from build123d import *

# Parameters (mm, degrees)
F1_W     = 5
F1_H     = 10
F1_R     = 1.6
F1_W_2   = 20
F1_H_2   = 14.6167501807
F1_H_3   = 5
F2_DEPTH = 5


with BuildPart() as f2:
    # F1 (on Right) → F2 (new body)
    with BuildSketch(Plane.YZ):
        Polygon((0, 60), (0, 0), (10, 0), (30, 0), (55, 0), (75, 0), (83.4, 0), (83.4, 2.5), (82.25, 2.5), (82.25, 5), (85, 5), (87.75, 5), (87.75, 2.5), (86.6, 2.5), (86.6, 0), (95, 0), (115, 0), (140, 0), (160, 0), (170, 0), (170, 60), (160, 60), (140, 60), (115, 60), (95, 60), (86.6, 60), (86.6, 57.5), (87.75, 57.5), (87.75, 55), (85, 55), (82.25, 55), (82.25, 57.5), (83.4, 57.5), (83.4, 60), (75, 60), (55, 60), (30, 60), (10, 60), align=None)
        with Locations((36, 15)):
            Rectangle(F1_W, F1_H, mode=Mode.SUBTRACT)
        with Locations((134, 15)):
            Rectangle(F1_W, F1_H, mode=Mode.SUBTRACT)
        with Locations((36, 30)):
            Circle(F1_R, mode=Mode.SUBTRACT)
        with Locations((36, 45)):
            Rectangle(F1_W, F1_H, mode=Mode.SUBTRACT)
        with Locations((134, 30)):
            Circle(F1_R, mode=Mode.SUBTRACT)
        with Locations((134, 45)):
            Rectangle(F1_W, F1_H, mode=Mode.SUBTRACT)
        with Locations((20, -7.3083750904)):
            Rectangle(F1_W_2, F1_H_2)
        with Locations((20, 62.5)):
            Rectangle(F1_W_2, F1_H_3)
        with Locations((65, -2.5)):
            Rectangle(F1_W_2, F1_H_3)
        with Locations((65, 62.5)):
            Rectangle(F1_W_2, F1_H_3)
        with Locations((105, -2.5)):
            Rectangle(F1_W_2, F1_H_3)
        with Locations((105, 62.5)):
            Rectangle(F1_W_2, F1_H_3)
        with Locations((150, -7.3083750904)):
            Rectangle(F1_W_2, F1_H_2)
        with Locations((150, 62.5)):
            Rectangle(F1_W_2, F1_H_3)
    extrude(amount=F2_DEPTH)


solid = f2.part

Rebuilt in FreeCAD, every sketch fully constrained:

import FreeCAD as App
import Part
import Sketcher
from FreeCAD import Vector

doc = App.newDocument("Part")
body = doc.addObject("PartDesign::Body", "Body")

# Sketch on YZ plane
sketch1 = body.newObject("Sketcher::SketchObject", "Sketch")
sketch1.AttachmentSupport = (doc.getObject("YZ_Plane"), [""])
sketch1.MapMode = "FlatFace"
sketch1.addGeometry([
    Part.LineSegment(Vector(0, 60, 0), Vector(0, 0, 0)),  # 0
    Part.LineSegment(Vector(0, 0, 0), Vector(10, 0, 0)),  # 1
    Part.LineSegment(Vector(10, 0, 0), Vector(10, -14.6, 0)),  # 2
    Part.LineSegment(Vector(10, -14.6, 0), Vector(30, -14.6, 0)),  # 3
    Part.LineSegment(Vector(30, -14.6, 0), Vector(30, 0, 0)),  # 4
    Part.LineSegment(Vector(30, 0, 0), Vector(55, 0, 0)),  # 5
    Part.LineSegment(Vector(55, 0, 0), Vector(55, -5, 0)),  # 6
    Part.LineSegment(Vector(55, -5, 0), Vector(75, -5, 0)),  # 7
    Part.LineSegment(Vector(75, -5, 0), Vector(75, 0, 0)),  # 8
    Part.LineSegment(Vector(75, 0, 0), Vector(83.4, 0, 0)),  # 9
    Part.LineSegment(Vector(83.4, 0, 0), Vector(83.4, 2.5, 0)),  # 10
    Part.LineSegment(Vector(83.4, 2.5, 0), Vector(82.2, 2.5, 0)),  # 11
    Part.LineSegment(Vector(82.2, 2.5, 0), Vector(82.2, 5, 0)),  # 12
    Part.LineSegment(Vector(82.2, 5, 0), Vector(87.8, 5, 0)),  # 13
    Part.LineSegment(Vector(87.8, 5, 0), Vector(87.8, 2.5, 0)),  # 14
    Part.LineSegment(Vector(87.8, 2.5, 0), Vector(86.6, 2.5, 0)),  # 15
    Part.LineSegment(Vector(86.6, 2.5, 0), Vector(86.6, 0, 0)),  # 16
    Part.LineSegment(Vector(86.6, 0, 0), Vector(95, 0, 0)),  # 17
    Part.LineSegment(Vector(95, 0, 0), Vector(95, -5, 0)),  # 18
    Part.LineSegment(Vector(95, -5, 0), Vector(115, -5, 0)),  # 19
    Part.LineSegment(Vector(115, -5, 0), Vector(115, 0, 0)),  # 20
    Part.LineSegment(Vector(115, 0, 0), Vector(140, 0, 0)),  # 21
    Part.LineSegment(Vector(140, 0, 0), Vector(140, -14.6, 0)),  # 22
    Part.LineSegment(Vector(140, -14.6, 0), Vector(160, -14.6, 0)),  # 23
    Part.LineSegment(Vector(160, -14.6, 0), Vector(160, 0, 0)),  # 24
    Part.LineSegment(Vector(160, 0, 0), Vector(170, 0, 0)),  # 25
    Part.LineSegment(Vector(170, 0, 0), Vector(170, 60, 0)),  # 26
    Part.LineSegment(Vector(170, 60, 0), Vector(160, 60, 0)),  # 27
    Part.LineSegment(Vector(160, 60, 0), Vector(160, 65, 0)),  # 28
    Part.LineSegment(Vector(160, 65, 0), Vector(140, 65, 0)),  # 29
    Part.LineSegment(Vector(140, 65, 0), Vector(140, 60, 0)),  # 30
    Part.LineSegment(Vector(140, 60, 0), Vector(115, 60, 0)),  # 31
    Part.LineSegment(Vector(115, 60, 0), Vector(115, 65, 0)),  # 32
    Part.LineSegment(Vector(115, 65, 0), Vector(95, 65, 0)),  # 33
    Part.LineSegment(Vector(95, 65, 0), Vector(95, 60, 0)),  # 34
    Part.LineSegment(Vector(95, 60, 0), Vector(86.6, 60, 0)),  # 35
    Part.LineSegment(Vector(86.6, 60, 0), Vector(86.6, 57.5, 0)),  # 36
    Part.LineSegment(Vector(86.6, 57.5, 0), Vector(87.8, 57.5, 0)),  # 37
    Part.LineSegment(Vector(87.8, 57.5, 0), Vector(87.8, 55, 0)),  # 38
    Part.LineSegment(Vector(87.8, 55, 0), Vector(82.2, 55, 0)),  # 39
    Part.LineSegment(Vector(82.2, 55, 0), Vector(82.2, 57.5, 0)),  # 40
    Part.LineSegment(Vector(82.2, 57.5, 0), Vector(83.4, 57.5, 0)),  # 41
    Part.LineSegment(Vector(83.4, 57.5, 0), Vector(83.4, 60, 0)),  # 42
    Part.LineSegment(Vector(83.4, 60, 0), Vector(75, 60, 0)),  # 43
    Part.LineSegment(Vector(75, 60, 0), Vector(75, 65, 0)),  # 44
    Part.LineSegment(Vector(75, 65, 0), Vector(55, 65, 0)),  # 45
    Part.LineSegment(Vector(55, 65, 0), Vector(55, 60, 0)),  # 46
    Part.LineSegment(Vector(55, 60, 0), Vector(30, 60, 0)),  # 47
    Part.LineSegment(Vector(30, 60, 0), Vector(30, 65, 0)),  # 48
    Part.LineSegment(Vector(30, 65, 0), Vector(10, 65, 0)),  # 49
    Part.LineSegment(Vector(10, 65, 0), Vector(10, 60, 0)),  # 50
    Part.LineSegment(Vector(10, 60, 0), Vector(0, 60, 0)),  # 51
    Part.LineSegment(Vector(38.5, 10, 0), Vector(33.5, 10, 0)),  # 52
    Part.LineSegment(Vector(33.5, 10, 0), Vector(33.5, 20, 0)),  # 53
    Part.LineSegment(Vector(33.5, 20, 0), Vector(38.5, 20, 0)),  # 54
    Part.LineSegment(Vector(38.5, 20, 0), Vector(38.5, 10, 0)),  # 55
    Part.LineSegment(Vector(136.5, 10, 0), Vector(131.5, 10, 0)),  # 56
    Part.LineSegment(Vector(131.5, 10, 0), Vector(131.5, 20, 0)),  # 57
    Part.LineSegment(Vector(131.5, 20, 0), Vector(136.5, 20, 0)),  # 58
    Part.LineSegment(Vector(136.5, 20, 0), Vector(136.5, 10, 0)),  # 59
    Part.Circle(Vector(36, 30, 0), Vector(0, 0, 1), 1.6),  # 60
    Part.LineSegment(Vector(38.5, 40, 0), Vector(33.5, 40, 0)),  # 61
    Part.LineSegment(Vector(33.5, 40, 0), Vector(33.5, 50, 0)),  # 62
    Part.LineSegment(Vector(33.5, 50, 0), Vector(38.5, 50, 0)),  # 63
    Part.LineSegment(Vector(38.5, 50, 0), Vector(38.5, 40, 0)),  # 64
    Part.Circle(Vector(134, 30, 0), Vector(0, 0, 1), 1.6),  # 65
    Part.LineSegment(Vector(136.5, 40, 0), Vector(131.5, 40, 0)),  # 66
    Part.LineSegment(Vector(131.5, 40, 0), Vector(131.5, 50, 0)),  # 67
    Part.LineSegment(Vector(131.5, 50, 0), Vector(136.5, 50, 0)),  # 68
    Part.LineSegment(Vector(136.5, 50, 0), Vector(136.5, 40, 0)),  # 69
], False)
sketch1.addConstraint([
    Sketcher.Constraint("Coincident", 0, 2, 1, 1),
    Sketcher.Constraint("Coincident", 1, 2, 2, 1),
    Sketcher.Constraint("Coincident", 2, 2, 3, 1),
    Sketcher.Constraint("Coincident", 3, 2, 4, 1),
    Sketcher.Constraint("Coincident", 4, 2, 5, 1),
    Sketcher.Constraint("Coincident", 5, 2, 6, 1),
    Sketcher.Constraint("Coincident", 6, 2, 7, 1),
    Sketcher.Constraint("Coincident", 7, 2, 8, 1),
    Sketcher.Constraint("Coincident", 8, 2, 9, 1),
    Sketcher.Constraint("Coincident", 9, 2, 10, 1),
    Sketcher.Constraint("Coincident", 10, 2, 11, 1),
    Sketcher.Constraint("Coincident", 11, 2, 12, 1),
    Sketcher.Constraint("Coincident", 12, 2, 13, 1),
    Sketcher.Constraint("Coincident", 13, 2, 14, 1),
    Sketcher.Constraint("Coincident", 14, 2, 15, 1),
    Sketcher.Constraint("Coincident", 15, 2, 16, 1),
    Sketcher.Constraint("Coincident", 16, 2, 17, 1),
    Sketcher.Constraint("Coincident", 17, 2, 18, 1),
    Sketcher.Constraint("Coincident", 18, 2, 19, 1),
    Sketcher.Constraint("Coincident", 19, 2, 20, 1),
    Sketcher.Constraint("Coincident", 20, 2, 21, 1),
    Sketcher.Constraint("Coincident", 21, 2, 22, 1),
    Sketcher.Constraint("Coincident", 22, 2, 23, 1),
    Sketcher.Constraint("Coincident", 23, 2, 24, 1),
    Sketcher.Constraint("Coincident", 24, 2, 25, 1),
    Sketcher.Constraint("Coincident", 25, 2, 26, 1),
    Sketcher.Constraint("Coincident", 26, 2, 27, 1),
    Sketcher.Constraint("Coincident", 27, 2, 28, 1),
    Sketcher.Constraint("Coincident", 28, 2, 29, 1),
    Sketcher.Constraint("Coincident", 29, 2, 30, 1),
    Sketcher.Constraint("Coincident", 30, 2, 31, 1),
    Sketcher.Constraint("Coincident", 31, 2, 32, 1),
    Sketcher.Constraint("Coincident", 32, 2, 33, 1),
    Sketcher.Constraint("Coincident", 33, 2, 34, 1),
    Sketcher.Constraint("Coincident", 34, 2, 35, 1),
    Sketcher.Constraint("Coincident", 35, 2, 36, 1),
    Sketcher.Constraint("Coincident", 36, 2, 37, 1),
    Sketcher.Constraint("Coincident", 37, 2, 38, 1),
    Sketcher.Constraint("Coincident", 38, 2, 39, 1),
    Sketcher.Constraint("Coincident", 39, 2, 40, 1),
    Sketcher.Constraint("Coincident", 40, 2, 41, 1),
    Sketcher.Constraint("Coincident", 41, 2, 42, 1),
    Sketcher.Constraint("Coincident", 42, 2, 43, 1),
    Sketcher.Constraint("Coincident", 43, 2, 44, 1),
    Sketcher.Constraint("Coincident", 44, 2, 45, 1),
    Sketcher.Constraint("Coincident", 45, 2, 46, 1),
    Sketcher.Constraint("Coincident", 46, 2, 47, 1),
    Sketcher.Constraint("Coincident", 47, 2, 48, 1),
    Sketcher.Constraint("Coincident", 48, 2, 49, 1),
    Sketcher.Constraint("Coincident", 49, 2, 50, 1),
    Sketcher.Constraint("Coincident", 50, 2, 51, 1),
    Sketcher.Constraint("Coincident", 51, 2, 0, 1),
    Sketcher.Constraint("Coincident", 52, 2, 53, 1),
    Sketcher.Constraint("Coincident", 53, 2, 54, 1),
    Sketcher.Constraint("Coincident", 54, 2, 55, 1),
    Sketcher.Constraint("Coincident", 55, 2, 52, 1),
    Sketcher.Constraint("Coincident", 56, 2, 57, 1),
    Sketcher.Constraint("Coincident", 57, 2, 58, 1),
    Sketcher.Constraint("Coincident", 58, 2, 59, 1),
    Sketcher.Constraint("Coincident", 59, 2, 56, 1),
    Sketcher.Constraint("Coincident", 61, 2, 62, 1),
    Sketcher.Constraint("Coincident", 62, 2, 63, 1),
    Sketcher.Constraint("Coincident", 63, 2, 64, 1),
    Sketcher.Constraint("Coincident", 64, 2, 61, 1),
    Sketcher.Constraint("Coincident", 66, 2, 67, 1),
    Sketcher.Constraint("Coincident", 67, 2, 68, 1),
    Sketcher.Constraint("Coincident", 68, 2, 69, 1),
    Sketcher.Constraint("Coincident", 69, 2, 66, 1),
    Sketcher.Constraint("Vertical", 0),
    Sketcher.Constraint("Horizontal", 1),
    Sketcher.Constraint("Vertical", 2),
    Sketcher.Constraint("Horizontal", 3),
    Sketcher.Constraint("Vertical", 4),
    Sketcher.Constraint("Horizontal", 5),
    Sketcher.Constraint("Vertical", 6),
    Sketcher.Constraint("Horizontal", 7),
    Sketcher.Constraint("Vertical", 8),
    Sketcher.Constraint("Horizontal", 9),
    Sketcher.Constraint("Vertical", 10),
    Sketcher.Constraint("Horizontal", 11),
    Sketcher.Constraint("Vertical", 12),
    Sketcher.Constraint("Horizontal", 13),
    Sketcher.Constraint("Vertical", 14),
    Sketcher.Constraint("Horizontal", 15),
    Sketcher.Constraint("Vertical", 16),
    Sketcher.Constraint("Horizontal", 17),
    Sketcher.Constraint("Vertical", 18),
    Sketcher.Constraint("Horizontal", 19),
    Sketcher.Constraint("Vertical", 20),
    Sketcher.Constraint("Horizontal", 21),
    Sketcher.Constraint("Vertical", 22),
    Sketcher.Constraint("Horizontal", 23),
    Sketcher.Constraint("Vertical", 24),
    Sketcher.Constraint("Horizontal", 25),
    Sketcher.Constraint("Vertical", 26),
    Sketcher.Constraint("Horizontal", 27),
    Sketcher.Constraint("Vertical", 28),
    Sketcher.Constraint("Horizontal", 29),
    Sketcher.Constraint("Vertical", 30),
    Sketcher.Constraint("Horizontal", 31),
    Sketcher.Constraint("Vertical", 32),
    Sketcher.Constraint("Horizontal", 33),
    Sketcher.Constraint("Vertical", 34),
    Sketcher.Constraint("Horizontal", 35),
    Sketcher.Constraint("Vertical", 36),
    Sketcher.Constraint("Horizontal", 37),
    Sketcher.Constraint("Vertical", 38),
    Sketcher.Constraint("Horizontal", 39),
    Sketcher.Constraint("Vertical", 40),
    Sketcher.Constraint("Horizontal", 41),
    Sketcher.Constraint("Vertical", 42),
    Sketcher.Constraint("Horizontal", 43),
    Sketcher.Constraint("Vertical", 44),
    Sketcher.Constraint("Horizontal", 45),
    Sketcher.Constraint("Vertical", 46),
    Sketcher.Constraint("Horizontal", 47),
    Sketcher.Constraint("Vertical", 48),
    Sketcher.Constraint("Horizontal", 49),
    Sketcher.Constraint("Vertical", 50),
    Sketcher.Constraint("Horizontal", 51),
    Sketcher.Constraint("Horizontal", 52),
    Sketcher.Constraint("Vertical", 53),
    Sketcher.Constraint("Horizontal", 54),
    Sketcher.Constraint("Vertical", 55),
    Sketcher.Constraint("Horizontal", 56),
    Sketcher.Constraint("Vertical", 57),
    Sketcher.Constraint("Horizontal", 58),
    Sketcher.Constraint("Vertical", 59),
    Sketcher.Constraint("Horizontal", 61),
    Sketcher.Constraint("Vertical", 62),
    Sketcher.Constraint("Horizontal", 63),
    Sketcher.Constraint("Vertical", 64),
    Sketcher.Constraint("Horizontal", 66),
    Sketcher.Constraint("Vertical", 67),
    Sketcher.Constraint("Horizontal", 68),
    Sketcher.Constraint("Vertical", 69),
    Sketcher.Constraint("Coincident", 0, 2, -1, 1),
    Sketcher.Constraint("Equal", 60, 65),
    Sketcher.Constraint("PointOnObject", 4, 2, -1),
    Sketcher.Constraint("PointOnObject", 8, 2, -1),
    Sketcher.Constraint("PointOnObject", 16, 2, -1),
    Sketcher.Constraint("PointOnObject", 20, 2, -1),
    Sketcher.Constraint("PointOnObject", 24, 2, -1),
    Sketcher.Constraint("Horizontal", 60, 3, 65, 3),
    Sketcher.Constraint("Horizontal", 11, 2, 14, 2),
    Sketcher.Constraint("Horizontal", 7, 2, 18, 2),
    Sketcher.Constraint("Horizontal", 3, 2, 22, 2),
    Sketcher.Constraint("Horizontal", 27, 2, 30, 2),
    Sketcher.Constraint("Horizontal", 29, 2, 32, 2),
    Sketcher.Constraint("Horizontal", 31, 2, 34, 2),
    Sketcher.Constraint("Horizontal", 37, 2, 40, 2),
    Sketcher.Constraint("Horizontal", 35, 2, 42, 2),
    Sketcher.Constraint("Horizontal", 33, 2, 44, 2),
    Sketcher.Constraint("Horizontal", 43, 2, 46, 2),
    Sketcher.Constraint("Horizontal", 45, 2, 48, 2),
    Sketcher.Constraint("Horizontal", 47, 2, 50, 2),
    Sketcher.Constraint("Horizontal", 55, 2, 56, 2),
    Sketcher.Constraint("Horizontal", 54, 2, 57, 2),
    Sketcher.Constraint("Horizontal", 64, 2, 66, 2),
    Sketcher.Constraint("Horizontal", 63, 2, 67, 2),
    Sketcher.Constraint("Vertical", 24, 2, 27, 2),
    Sketcher.Constraint("Vertical", 22, 2, 29, 2),
    Sketcher.Constraint("Vertical", 20, 2, 31, 2),
    Sketcher.Constraint("Vertical", 18, 2, 33, 2),
    Sketcher.Constraint("Vertical", 16, 2, 35, 2),
    Sketcher.Constraint("Vertical", 14, 2, 37, 2),
    Sketcher.Constraint("Vertical", 12, 2, 39, 2),
    Sketcher.Constraint("Vertical", 10, 2, 41, 2),
    Sketcher.Constraint("Vertical", 8, 2, 43, 2),
    Sketcher.Constraint("Vertical", 6, 2, 45, 2),
    Sketcher.Constraint("Vertical", 4, 2, 47, 2),
    Sketcher.Constraint("Vertical", 2, 2, 49, 2),
    Sketcher.Constraint("Vertical", 53, 2, 61, 2),
    Sketcher.Constraint("Vertical", 55, 2, 63, 2),
    Sketcher.Constraint("Vertical", 57, 2, 66, 2),
    Sketcher.Constraint("Vertical", 59, 2, 68, 2),
    Sketcher.Constraint("Equal", 3, 7),
    Sketcher.Constraint("Equal", 11, 15),
    Sketcher.Constraint("Equal", 9, 17),
    Sketcher.Constraint("Equal", 7, 19),
    Sketcher.Constraint("Equal", 5, 21),
    Sketcher.Constraint("Equal", 19, 23),
    Sketcher.Constraint("Equal", 1, 25),
    Sketcher.Constraint("Equal", 54, 56),
    Sketcher.Constraint("Equal", 68, 6),
    Sketcher.Constraint("Equal", 10, 12),
    Sketcher.Constraint("Equal", 20, 28),
    Sketcher.Constraint("Equal", 16, 36),
    Sketcher.Constraint("Equal", 36, 38),
    Sketcher.Constraint("Equal", 51, 53),
    Sketcher.Constraint("Equal", 59, 62),
    Sketcher.Constraint("Diameter", 60, 3.2),
    Sketcher.Constraint("DistanceX", 1, 1, 1, 2, 10.0),
    Sketcher.Constraint("DistanceX", 3, 1, 3, 2, 20.0),
    Sketcher.Constraint("DistanceX", 5, 1, 5, 2, 25.0),
    Sketcher.Constraint("DistanceX", 52, 2, 52, 1, 5.0),
    Sketcher.Constraint("DistanceY", 0, 2, 0, 1, 60.0),
    Sketcher.Constraint("DistanceX", 9, 1, 9, 2, 8.4),
    Sketcher.Constraint("DistanceX", 13, 1, 13, 2, 5.5),
    Sketcher.Constraint("DistanceY", 10, 1, 10, 2, 2.5),
    Sketcher.Constraint("DistanceX", -1, 1, 60, 3, 36.0),
    Sketcher.Constraint("DistanceY", -1, 1, 60, 3, 30.0),
    Sketcher.Constraint("DistanceX", -1, 1, 65, 3, 134.0),
    Sketcher.Constraint("DistanceX", -1, 1, 17, 2, 95.0),
    Sketcher.Constraint("DistanceY", -1, 1, 52, 2, 10.0),
    Sketcher.Constraint("DistanceY", -1, 1, 61, 2, 40.0),
    Sketcher.Constraint("DistanceX", -1, 1, 52, 2, 33.5),
    Sketcher.Constraint("DistanceX", -1, 1, 56, 2, 131.5),
    Sketcher.Constraint("DistanceY", 2, 2, 2, 1, 14.61675),
])
pad1 = body.newObject("PartDesign::Pad", "Pad")
pad1.Profile = sketch1
pad1.Length = 5

doc.recompute()
